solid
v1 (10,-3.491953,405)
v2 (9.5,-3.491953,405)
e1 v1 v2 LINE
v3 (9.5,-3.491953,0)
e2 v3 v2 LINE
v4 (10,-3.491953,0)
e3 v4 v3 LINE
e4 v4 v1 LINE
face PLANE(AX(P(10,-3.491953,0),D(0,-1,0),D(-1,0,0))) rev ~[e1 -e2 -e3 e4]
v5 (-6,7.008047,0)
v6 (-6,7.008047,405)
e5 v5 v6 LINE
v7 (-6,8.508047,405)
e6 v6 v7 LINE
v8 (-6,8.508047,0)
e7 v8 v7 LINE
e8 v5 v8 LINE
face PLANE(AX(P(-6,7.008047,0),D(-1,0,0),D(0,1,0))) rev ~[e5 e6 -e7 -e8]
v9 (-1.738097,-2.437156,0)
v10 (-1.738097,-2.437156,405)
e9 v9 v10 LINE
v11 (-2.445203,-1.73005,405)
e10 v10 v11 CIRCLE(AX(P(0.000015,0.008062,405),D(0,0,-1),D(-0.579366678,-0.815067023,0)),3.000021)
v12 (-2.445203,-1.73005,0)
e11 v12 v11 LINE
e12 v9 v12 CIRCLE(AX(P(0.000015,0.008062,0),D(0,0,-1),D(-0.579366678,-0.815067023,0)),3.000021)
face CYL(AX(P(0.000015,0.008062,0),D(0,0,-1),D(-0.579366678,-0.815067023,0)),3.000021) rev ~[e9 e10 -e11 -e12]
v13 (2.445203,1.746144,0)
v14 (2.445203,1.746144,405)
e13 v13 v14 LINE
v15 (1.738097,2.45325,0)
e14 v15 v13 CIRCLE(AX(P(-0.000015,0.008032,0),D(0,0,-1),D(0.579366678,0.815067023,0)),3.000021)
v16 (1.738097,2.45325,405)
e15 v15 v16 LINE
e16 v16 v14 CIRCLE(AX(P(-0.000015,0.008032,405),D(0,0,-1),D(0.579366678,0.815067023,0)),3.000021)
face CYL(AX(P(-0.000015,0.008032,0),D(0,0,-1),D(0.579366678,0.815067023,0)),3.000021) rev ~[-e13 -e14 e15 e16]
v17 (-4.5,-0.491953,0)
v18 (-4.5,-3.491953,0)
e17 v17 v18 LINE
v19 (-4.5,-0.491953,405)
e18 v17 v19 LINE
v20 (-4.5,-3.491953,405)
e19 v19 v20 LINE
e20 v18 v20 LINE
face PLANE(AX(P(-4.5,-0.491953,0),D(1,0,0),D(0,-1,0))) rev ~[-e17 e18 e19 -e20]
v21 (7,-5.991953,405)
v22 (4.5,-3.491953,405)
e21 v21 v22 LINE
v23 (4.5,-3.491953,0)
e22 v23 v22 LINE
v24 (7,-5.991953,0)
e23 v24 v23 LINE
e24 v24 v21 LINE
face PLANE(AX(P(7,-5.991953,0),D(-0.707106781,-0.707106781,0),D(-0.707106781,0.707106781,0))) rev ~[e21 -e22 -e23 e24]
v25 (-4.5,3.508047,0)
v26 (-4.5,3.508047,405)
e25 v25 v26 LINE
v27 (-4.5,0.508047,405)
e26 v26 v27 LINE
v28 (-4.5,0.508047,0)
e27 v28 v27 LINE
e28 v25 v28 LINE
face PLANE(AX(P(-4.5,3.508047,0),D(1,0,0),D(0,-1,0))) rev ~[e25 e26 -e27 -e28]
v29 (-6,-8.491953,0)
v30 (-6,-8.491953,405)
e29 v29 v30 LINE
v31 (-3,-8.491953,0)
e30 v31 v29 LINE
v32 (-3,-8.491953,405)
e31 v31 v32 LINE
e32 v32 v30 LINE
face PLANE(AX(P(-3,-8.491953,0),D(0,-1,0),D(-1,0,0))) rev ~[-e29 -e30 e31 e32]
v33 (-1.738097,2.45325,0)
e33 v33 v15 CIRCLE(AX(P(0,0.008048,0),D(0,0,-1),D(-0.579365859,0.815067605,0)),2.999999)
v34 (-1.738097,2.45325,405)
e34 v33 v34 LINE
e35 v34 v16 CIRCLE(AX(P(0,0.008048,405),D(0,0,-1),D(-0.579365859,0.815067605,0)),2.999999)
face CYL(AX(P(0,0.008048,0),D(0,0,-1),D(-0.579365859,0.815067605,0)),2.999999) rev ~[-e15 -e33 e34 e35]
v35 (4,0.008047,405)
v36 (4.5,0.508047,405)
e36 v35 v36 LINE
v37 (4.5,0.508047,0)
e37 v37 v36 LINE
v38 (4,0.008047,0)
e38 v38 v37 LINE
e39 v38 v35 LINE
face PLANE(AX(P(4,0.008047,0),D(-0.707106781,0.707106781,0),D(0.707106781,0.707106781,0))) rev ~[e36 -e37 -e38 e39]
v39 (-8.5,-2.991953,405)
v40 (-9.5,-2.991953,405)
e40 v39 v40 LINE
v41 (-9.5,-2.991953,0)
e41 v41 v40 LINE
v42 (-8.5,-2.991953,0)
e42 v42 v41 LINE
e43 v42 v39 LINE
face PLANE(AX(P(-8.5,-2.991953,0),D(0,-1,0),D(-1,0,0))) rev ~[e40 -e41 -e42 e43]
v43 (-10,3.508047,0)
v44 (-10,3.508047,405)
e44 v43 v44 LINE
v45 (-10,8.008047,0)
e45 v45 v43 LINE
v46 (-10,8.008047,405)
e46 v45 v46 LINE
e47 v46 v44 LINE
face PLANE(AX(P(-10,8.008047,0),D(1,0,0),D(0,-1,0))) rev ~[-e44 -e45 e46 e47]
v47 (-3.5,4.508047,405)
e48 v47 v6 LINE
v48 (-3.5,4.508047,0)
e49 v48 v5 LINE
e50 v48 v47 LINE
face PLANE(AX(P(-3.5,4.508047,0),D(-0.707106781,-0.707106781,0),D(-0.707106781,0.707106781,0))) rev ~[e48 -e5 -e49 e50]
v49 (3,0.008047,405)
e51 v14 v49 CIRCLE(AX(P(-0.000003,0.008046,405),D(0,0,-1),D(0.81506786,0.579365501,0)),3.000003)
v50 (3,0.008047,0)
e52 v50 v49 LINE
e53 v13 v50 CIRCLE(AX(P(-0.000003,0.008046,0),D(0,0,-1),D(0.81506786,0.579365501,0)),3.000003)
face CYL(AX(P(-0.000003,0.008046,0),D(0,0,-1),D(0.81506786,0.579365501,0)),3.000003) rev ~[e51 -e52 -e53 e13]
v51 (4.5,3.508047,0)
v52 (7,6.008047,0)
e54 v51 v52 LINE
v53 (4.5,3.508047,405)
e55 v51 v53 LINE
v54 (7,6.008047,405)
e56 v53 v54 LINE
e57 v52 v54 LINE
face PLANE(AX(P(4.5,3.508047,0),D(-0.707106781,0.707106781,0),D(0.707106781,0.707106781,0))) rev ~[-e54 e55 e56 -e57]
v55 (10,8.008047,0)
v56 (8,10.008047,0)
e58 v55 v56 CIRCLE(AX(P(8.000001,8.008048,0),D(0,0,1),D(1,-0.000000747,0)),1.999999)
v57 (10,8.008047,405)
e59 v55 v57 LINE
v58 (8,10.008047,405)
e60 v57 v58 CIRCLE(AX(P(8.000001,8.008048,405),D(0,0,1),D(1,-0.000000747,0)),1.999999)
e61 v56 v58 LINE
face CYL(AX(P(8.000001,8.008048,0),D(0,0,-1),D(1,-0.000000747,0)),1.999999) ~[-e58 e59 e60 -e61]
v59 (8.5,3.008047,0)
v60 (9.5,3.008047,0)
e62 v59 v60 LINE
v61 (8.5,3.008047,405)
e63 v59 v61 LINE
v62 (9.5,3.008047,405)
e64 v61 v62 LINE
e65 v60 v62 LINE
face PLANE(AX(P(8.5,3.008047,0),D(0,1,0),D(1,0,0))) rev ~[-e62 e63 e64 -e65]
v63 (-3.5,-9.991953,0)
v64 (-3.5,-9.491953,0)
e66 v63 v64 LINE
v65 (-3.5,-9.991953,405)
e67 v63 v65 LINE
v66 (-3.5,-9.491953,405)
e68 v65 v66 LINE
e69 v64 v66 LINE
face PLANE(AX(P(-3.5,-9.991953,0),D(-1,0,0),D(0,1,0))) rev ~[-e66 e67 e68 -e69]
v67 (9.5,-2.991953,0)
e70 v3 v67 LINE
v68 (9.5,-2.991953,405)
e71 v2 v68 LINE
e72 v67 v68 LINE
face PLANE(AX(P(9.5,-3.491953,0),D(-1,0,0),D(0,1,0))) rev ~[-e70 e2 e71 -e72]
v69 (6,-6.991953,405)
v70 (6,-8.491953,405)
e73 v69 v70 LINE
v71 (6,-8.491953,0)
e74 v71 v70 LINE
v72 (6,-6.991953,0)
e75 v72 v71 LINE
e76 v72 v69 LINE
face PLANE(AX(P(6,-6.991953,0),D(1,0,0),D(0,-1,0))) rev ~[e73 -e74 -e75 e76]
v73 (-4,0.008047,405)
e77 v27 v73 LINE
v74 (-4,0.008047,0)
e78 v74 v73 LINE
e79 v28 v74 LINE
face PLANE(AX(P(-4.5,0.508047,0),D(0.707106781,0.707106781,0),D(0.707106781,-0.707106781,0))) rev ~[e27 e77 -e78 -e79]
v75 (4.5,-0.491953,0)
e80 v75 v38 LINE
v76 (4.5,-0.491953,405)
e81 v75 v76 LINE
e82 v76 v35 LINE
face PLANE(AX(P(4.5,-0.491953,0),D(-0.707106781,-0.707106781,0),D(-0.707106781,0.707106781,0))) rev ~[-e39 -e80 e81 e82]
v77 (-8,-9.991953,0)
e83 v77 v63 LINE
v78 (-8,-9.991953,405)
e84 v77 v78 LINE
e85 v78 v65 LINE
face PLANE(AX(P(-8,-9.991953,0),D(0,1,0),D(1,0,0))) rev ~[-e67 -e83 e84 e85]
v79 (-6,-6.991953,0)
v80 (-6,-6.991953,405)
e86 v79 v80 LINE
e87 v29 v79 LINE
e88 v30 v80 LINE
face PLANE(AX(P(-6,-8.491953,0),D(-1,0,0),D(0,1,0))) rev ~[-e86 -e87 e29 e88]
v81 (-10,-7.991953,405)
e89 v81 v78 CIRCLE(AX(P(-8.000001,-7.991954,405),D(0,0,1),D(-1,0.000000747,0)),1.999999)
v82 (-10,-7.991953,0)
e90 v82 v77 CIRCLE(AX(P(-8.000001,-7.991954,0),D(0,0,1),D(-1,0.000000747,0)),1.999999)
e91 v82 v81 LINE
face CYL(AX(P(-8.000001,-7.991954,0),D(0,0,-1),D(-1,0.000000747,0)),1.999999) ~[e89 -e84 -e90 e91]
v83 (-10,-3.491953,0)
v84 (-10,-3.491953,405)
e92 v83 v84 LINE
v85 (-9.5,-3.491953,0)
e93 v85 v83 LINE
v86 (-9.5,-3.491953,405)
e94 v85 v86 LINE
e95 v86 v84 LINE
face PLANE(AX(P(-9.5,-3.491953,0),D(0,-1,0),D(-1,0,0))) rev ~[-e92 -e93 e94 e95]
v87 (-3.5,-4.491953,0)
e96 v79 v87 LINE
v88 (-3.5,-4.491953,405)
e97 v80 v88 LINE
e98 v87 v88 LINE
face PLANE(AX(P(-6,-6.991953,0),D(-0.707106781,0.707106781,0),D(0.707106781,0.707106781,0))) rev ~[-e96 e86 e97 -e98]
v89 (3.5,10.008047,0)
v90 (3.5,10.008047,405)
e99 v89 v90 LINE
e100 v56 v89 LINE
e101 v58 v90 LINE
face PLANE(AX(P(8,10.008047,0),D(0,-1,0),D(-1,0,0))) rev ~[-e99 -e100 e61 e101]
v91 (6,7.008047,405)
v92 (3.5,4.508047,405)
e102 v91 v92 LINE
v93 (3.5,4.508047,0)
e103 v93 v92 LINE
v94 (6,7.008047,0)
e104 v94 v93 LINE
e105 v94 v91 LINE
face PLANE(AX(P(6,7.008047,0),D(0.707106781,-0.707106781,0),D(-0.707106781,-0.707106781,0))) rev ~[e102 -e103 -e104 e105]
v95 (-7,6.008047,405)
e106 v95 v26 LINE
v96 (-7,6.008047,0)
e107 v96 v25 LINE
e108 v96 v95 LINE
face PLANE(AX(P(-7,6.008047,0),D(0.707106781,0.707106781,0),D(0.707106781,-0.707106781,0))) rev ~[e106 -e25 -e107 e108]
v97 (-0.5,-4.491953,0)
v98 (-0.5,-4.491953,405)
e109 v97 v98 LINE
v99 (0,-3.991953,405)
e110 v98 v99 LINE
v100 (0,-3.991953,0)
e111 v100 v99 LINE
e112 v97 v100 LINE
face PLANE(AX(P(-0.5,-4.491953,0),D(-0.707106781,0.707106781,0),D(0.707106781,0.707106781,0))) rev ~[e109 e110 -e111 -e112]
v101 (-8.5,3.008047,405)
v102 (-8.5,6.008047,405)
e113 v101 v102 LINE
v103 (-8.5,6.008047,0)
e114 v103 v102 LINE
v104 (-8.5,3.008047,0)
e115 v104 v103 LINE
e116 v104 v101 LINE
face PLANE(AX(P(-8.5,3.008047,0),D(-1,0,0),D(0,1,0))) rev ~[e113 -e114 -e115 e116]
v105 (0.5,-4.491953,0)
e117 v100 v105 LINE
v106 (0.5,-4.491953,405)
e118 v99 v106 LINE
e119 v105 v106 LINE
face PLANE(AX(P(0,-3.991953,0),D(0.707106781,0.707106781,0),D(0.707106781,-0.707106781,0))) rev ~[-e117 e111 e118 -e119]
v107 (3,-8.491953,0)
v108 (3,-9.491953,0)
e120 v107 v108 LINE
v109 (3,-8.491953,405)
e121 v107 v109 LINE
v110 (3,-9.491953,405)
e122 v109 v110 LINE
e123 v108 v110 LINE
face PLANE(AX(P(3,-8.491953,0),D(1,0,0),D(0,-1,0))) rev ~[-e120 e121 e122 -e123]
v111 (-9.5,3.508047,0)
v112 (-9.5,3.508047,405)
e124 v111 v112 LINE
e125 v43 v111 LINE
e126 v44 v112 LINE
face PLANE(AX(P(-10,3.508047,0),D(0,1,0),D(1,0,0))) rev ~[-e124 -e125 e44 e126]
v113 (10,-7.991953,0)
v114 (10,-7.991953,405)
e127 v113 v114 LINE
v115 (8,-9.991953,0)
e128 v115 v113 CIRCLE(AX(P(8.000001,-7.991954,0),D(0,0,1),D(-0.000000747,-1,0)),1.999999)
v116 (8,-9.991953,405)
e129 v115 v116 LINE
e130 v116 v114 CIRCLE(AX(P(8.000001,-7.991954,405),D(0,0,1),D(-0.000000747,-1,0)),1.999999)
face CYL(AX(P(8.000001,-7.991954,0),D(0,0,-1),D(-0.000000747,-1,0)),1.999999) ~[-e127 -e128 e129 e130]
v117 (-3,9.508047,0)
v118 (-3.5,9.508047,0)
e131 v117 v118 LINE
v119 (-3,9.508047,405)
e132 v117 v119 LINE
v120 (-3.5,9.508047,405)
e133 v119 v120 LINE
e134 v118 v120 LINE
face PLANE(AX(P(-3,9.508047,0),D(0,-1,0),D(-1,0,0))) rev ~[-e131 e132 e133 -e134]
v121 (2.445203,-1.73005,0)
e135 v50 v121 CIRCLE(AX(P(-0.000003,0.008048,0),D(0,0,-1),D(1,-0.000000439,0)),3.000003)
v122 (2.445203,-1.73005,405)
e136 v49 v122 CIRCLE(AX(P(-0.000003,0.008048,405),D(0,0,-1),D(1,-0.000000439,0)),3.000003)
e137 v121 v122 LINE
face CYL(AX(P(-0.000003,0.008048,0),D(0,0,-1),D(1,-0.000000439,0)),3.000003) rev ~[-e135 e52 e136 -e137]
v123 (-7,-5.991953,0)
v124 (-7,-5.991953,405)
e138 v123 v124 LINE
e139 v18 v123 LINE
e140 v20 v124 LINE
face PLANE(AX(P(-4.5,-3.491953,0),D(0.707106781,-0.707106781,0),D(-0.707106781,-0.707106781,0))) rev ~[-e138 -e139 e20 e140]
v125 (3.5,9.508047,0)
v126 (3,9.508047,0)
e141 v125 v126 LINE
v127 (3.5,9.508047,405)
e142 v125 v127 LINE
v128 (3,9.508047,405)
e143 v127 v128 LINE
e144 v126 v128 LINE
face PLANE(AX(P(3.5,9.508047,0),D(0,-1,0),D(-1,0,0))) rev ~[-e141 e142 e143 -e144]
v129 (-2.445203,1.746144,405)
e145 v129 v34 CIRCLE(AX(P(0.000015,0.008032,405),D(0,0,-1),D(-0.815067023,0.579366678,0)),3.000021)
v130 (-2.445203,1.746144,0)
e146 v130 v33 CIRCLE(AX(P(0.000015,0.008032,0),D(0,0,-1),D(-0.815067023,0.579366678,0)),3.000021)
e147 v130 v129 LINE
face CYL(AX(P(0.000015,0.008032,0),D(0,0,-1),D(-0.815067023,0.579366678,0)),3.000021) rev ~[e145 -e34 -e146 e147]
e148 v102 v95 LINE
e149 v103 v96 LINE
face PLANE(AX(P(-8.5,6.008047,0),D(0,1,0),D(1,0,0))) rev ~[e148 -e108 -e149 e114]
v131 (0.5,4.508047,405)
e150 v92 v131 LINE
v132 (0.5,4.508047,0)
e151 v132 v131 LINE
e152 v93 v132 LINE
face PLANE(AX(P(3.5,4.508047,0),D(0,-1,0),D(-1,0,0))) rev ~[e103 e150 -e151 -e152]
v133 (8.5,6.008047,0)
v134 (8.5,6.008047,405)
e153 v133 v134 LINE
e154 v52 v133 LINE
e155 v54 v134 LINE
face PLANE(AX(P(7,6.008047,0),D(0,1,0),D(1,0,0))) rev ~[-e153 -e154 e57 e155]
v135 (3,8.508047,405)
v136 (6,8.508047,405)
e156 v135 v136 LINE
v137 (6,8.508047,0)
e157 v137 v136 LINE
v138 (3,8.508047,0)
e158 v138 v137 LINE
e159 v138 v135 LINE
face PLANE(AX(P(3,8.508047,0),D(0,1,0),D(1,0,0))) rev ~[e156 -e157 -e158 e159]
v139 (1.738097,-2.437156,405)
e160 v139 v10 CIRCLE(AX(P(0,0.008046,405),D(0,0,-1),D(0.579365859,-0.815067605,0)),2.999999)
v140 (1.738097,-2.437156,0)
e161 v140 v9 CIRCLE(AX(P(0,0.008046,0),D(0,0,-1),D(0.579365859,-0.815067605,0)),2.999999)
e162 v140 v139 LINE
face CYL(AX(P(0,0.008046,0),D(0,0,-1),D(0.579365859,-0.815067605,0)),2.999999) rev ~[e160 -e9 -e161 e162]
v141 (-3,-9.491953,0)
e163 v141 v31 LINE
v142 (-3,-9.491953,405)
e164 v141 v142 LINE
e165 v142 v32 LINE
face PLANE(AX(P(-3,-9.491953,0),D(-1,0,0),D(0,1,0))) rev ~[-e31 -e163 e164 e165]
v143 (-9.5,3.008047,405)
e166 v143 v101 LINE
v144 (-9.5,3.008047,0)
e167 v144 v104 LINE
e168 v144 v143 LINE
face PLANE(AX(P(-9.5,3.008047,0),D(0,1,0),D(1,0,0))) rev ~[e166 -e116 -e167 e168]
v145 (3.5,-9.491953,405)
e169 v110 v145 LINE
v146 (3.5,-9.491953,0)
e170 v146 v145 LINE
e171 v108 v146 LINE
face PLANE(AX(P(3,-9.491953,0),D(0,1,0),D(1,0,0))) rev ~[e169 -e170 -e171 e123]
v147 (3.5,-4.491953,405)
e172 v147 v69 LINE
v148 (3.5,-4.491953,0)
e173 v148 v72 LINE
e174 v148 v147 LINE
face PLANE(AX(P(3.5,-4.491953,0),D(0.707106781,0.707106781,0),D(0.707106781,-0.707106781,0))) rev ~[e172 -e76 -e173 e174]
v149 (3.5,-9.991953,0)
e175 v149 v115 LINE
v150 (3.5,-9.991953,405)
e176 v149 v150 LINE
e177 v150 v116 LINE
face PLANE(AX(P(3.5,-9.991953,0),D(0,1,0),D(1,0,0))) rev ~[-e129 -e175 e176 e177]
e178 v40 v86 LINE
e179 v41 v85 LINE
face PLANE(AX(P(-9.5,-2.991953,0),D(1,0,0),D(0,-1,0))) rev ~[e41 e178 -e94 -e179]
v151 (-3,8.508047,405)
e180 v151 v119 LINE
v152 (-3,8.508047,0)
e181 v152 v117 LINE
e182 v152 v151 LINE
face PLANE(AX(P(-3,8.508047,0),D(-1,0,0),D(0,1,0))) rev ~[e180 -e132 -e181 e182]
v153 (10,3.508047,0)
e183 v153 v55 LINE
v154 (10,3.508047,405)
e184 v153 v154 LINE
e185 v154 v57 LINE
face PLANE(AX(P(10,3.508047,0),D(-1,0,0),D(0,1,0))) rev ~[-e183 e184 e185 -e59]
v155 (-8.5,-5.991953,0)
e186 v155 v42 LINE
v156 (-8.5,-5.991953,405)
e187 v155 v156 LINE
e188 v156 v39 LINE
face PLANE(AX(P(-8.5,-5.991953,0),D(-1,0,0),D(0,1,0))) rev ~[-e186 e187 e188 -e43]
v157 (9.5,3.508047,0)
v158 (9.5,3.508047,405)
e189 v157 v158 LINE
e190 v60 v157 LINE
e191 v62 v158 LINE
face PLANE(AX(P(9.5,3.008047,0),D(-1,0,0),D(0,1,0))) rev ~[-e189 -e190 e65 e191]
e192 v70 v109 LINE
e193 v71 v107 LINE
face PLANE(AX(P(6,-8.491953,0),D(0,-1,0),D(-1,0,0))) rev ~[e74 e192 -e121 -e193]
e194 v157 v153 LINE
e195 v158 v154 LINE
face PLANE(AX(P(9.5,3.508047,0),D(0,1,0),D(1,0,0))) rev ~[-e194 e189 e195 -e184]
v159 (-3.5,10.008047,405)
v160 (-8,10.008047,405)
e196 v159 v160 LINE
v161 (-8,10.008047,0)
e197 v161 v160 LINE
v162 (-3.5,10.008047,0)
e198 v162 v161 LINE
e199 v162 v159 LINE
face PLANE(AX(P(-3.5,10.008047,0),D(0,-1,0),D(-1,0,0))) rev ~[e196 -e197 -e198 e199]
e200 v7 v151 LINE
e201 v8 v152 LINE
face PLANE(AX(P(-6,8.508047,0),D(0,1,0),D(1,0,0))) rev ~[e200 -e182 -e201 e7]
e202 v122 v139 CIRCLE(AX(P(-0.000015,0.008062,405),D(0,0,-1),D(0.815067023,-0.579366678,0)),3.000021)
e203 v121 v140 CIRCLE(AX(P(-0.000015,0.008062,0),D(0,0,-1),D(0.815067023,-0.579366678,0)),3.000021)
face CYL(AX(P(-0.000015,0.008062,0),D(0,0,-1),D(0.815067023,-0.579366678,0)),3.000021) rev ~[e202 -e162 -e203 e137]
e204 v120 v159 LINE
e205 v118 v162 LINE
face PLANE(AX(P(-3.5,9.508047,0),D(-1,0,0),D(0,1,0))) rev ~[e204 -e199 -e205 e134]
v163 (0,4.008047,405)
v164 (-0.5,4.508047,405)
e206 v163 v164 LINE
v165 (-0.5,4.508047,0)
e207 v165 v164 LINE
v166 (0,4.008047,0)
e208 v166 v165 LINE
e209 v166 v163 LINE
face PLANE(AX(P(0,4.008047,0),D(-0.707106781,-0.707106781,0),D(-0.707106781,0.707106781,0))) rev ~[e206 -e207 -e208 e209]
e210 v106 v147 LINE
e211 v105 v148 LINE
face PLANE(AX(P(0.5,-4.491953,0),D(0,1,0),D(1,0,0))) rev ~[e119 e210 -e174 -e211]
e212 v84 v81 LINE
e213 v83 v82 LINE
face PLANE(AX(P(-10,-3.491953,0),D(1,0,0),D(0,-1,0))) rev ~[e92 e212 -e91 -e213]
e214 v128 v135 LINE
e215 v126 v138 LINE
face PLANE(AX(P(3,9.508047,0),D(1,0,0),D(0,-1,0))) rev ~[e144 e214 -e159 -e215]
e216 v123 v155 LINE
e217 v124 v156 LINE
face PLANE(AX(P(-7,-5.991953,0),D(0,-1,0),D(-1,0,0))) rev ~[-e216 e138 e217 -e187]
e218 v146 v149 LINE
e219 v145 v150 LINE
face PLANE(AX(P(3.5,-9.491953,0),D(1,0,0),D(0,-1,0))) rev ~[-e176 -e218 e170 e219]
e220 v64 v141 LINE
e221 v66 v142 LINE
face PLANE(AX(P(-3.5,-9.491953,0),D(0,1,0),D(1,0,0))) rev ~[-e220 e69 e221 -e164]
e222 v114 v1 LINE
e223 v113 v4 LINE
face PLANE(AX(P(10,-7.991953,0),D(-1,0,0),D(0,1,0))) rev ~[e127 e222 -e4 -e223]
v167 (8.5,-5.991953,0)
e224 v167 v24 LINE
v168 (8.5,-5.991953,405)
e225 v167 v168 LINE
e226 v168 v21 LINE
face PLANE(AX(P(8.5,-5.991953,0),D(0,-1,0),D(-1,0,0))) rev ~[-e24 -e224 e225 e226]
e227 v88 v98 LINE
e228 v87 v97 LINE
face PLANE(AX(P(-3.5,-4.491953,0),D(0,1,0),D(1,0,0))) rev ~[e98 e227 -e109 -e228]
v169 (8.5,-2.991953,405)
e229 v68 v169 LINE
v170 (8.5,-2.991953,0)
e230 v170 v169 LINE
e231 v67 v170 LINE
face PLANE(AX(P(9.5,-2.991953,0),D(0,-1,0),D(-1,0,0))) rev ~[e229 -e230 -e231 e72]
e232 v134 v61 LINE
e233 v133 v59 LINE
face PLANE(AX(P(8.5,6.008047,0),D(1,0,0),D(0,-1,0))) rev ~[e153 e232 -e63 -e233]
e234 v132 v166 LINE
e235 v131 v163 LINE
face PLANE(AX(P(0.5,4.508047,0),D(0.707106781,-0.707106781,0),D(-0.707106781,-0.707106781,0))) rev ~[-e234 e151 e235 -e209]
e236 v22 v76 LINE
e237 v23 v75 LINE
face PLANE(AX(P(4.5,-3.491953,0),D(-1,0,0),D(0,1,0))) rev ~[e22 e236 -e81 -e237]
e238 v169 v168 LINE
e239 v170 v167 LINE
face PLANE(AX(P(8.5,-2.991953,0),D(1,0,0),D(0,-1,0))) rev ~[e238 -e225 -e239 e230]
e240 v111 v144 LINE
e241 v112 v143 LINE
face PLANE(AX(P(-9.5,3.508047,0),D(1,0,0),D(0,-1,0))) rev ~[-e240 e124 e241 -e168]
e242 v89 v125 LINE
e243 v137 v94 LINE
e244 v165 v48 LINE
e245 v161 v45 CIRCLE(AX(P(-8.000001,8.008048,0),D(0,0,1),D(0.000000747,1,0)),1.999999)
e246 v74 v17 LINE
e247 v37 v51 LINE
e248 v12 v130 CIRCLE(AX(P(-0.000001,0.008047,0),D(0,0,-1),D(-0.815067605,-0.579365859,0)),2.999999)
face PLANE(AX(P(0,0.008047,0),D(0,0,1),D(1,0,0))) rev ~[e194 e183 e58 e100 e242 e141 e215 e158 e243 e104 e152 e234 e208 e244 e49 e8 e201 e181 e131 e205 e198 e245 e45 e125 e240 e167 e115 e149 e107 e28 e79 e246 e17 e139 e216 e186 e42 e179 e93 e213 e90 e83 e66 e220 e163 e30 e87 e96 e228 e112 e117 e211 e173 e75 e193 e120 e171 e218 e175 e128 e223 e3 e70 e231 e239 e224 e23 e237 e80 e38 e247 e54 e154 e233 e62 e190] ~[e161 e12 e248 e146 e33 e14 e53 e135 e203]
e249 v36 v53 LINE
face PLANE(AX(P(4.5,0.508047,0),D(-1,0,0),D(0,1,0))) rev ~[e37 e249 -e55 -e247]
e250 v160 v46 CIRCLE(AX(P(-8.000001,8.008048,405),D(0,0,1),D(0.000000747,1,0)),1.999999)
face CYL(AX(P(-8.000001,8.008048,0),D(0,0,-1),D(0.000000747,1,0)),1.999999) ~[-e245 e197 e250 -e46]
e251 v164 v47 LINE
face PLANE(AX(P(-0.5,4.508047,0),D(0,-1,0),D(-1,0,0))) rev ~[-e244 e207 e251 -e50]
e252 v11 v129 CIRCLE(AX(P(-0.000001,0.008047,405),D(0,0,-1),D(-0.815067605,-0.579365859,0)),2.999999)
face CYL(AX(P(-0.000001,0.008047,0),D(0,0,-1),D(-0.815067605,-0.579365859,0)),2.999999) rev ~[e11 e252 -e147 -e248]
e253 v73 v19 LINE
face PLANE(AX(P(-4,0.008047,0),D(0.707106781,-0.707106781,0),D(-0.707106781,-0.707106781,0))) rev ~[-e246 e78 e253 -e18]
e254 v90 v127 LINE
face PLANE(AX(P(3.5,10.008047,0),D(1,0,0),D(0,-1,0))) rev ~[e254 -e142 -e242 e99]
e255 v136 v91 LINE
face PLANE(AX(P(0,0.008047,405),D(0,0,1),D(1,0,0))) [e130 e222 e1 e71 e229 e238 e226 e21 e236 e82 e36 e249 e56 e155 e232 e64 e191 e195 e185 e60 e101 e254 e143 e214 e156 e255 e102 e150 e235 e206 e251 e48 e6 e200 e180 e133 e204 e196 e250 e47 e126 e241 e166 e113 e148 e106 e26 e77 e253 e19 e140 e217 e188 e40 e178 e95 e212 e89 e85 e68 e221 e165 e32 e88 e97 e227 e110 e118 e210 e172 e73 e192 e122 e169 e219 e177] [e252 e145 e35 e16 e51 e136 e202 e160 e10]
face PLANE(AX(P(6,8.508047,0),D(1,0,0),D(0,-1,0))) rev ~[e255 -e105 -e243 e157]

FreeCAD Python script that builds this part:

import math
import FreeCAD as App
import Part
import Sketcher
Q = App.Units.Quantity

doc = App.newDocument("Part")
body = doc.addObject("PartDesign::Body", "Body")

# Sketch on XY plane
sketch1 = doc.addObject("Sketcher::SketchObject", "Sketch")
body.addObject(sketch1)
sketch1.AttachmentSupport = (doc.XY_Plane, [""])
sketch1.MapMode = "FlatFace"
sketch1.addGeometry([
    Part.ArcOfCircle(Part.Circle(App.Vector(-8.000001, -7.991954, 0), App.Vector(0, 0, 1), 1.999999), math.radians(179.999957), math.radians(270.000043)),  # 0
    Part.LineSegment(App.Vector(-8, -9.991953, 0), App.Vector(-3.5, -9.991953, 0)),  # 1
    Part.LineSegment(App.Vector(-3.5, -9.991953, 0), App.Vector(-3.5, -9.491953, 0)),  # 2
    Part.LineSegment(App.Vector(-3.5, -9.491953, 0), App.Vector(-3, -9.491953, 0)),  # 3
    Part.LineSegment(App.Vector(-3, -9.491953, 0), App.Vector(-3, -8.491953, 0)),  # 4
    Part.LineSegment(App.Vector(-3, -8.491953, 0), App.Vector(-6, -8.491953, 0)),  # 5
    Part.LineSegment(App.Vector(-6, -8.491953, 0), App.Vector(-6, -6.991953, 0)),  # 6
    Part.LineSegment(App.Vector(-6, -6.991953, 0), App.Vector(-3.5, -4.491953, 0)),  # 7
    Part.LineSegment(App.Vector(-3.5, -4.491953, 0), App.Vector(-0.5, -4.491953, 0)),  # 8
    Part.LineSegment(App.Vector(-0.5, -4.491953, 0), App.Vector(0, -3.991953, 0)),  # 9
    Part.LineSegment(App.Vector(0, -3.991953, 0), App.Vector(0.5, -4.491953, 0)),  # 10
    Part.LineSegment(App.Vector(0.5, -4.491953, 0), App.Vector(3.5, -4.491953, 0)),  # 11
    Part.LineSegment(App.Vector(3.5, -4.491953, 0), App.Vector(6, -6.991953, 0)),  # 12
    Part.LineSegment(App.Vector(6, -6.991953, 0), App.Vector(6, -8.491953, 0)),  # 13
    Part.LineSegment(App.Vector(6, -8.491953, 0), App.Vector(3, -8.491953, 0)),  # 14
    Part.LineSegment(App.Vector(3, -8.491953, 0), App.Vector(3, -9.491953, 0)),  # 15
    Part.LineSegment(App.Vector(3, -9.491953, 0), App.Vector(3.5, -9.491953, 0)),  # 16
    Part.LineSegment(App.Vector(3.5, -9.491953, 0), App.Vector(3.5, -9.991953, 0)),  # 17
    Part.LineSegment(App.Vector(3.5, -9.991953, 0), App.Vector(8, -9.991953, 0)),  # 18
    Part.ArcOfCircle(Part.Circle(App.Vector(8.000001, -7.991954, 0), App.Vector(0, 0, 1), 1.999999), math.radians(-90.000043), math.radians(0.000043)),  # 19
    Part.LineSegment(App.Vector(10, -7.991953, 0), App.Vector(10, -3.491953, 0)),  # 20
    Part.LineSegment(App.Vector(10, -3.491953, 0), App.Vector(9.5, -3.491953, 0)),  # 21
    Part.LineSegment(App.Vector(9.5, -3.491953, 0), App.Vector(9.5, -2.991953, 0)),  # 22
    Part.LineSegment(App.Vector(9.5, -2.991953, 0), App.Vector(8.5, -2.991953, 0)),  # 23
    Part.LineSegment(App.Vector(8.5, -2.991953, 0), App.Vector(8.5, -5.991953, 0)),  # 24
    Part.LineSegment(App.Vector(8.5, -5.991953, 0), App.Vector(7, -5.991953, 0)),  # 25
    Part.LineSegment(App.Vector(7, -5.991953, 0), App.Vector(4.5, -3.491953, 0)),  # 26
    Part.LineSegment(App.Vector(4.5, -3.491953, 0), App.Vector(4.5, -0.491953, 0)),  # 27
    Part.LineSegment(App.Vector(4.5, -0.491953, 0), App.Vector(4, 0.008047, 0)),  # 28
    Part.LineSegment(App.Vector(4, 0.008047, 0), App.Vector(4.5, 0.508047, 0)),  # 29
    Part.LineSegment(App.Vector(4.5, 0.508047, 0), App.Vector(4.5, 3.508047, 0)),  # 30
    Part.LineSegment(App.Vector(4.5, 3.508047, 0), App.Vector(7, 6.008047, 0)),  # 31
    Part.LineSegment(App.Vector(7, 6.008047, 0), App.Vector(8.5, 6.008047, 0)),  # 32
    Part.LineSegment(App.Vector(8.5, 6.008047, 0), App.Vector(8.5, 3.008047, 0)),  # 33
    Part.LineSegment(App.Vector(8.5, 3.008047, 0), App.Vector(9.5, 3.008047, 0)),  # 34
    Part.LineSegment(App.Vector(9.5, 3.008047, 0), App.Vector(9.5, 3.508047, 0)),  # 35
    Part.LineSegment(App.Vector(9.5, 3.508047, 0), App.Vector(10, 3.508047, 0)),  # 36
    Part.LineSegment(App.Vector(10, 3.508047, 0), App.Vector(10, 8.008047, 0)),  # 37
    Part.ArcOfCircle(Part.Circle(App.Vector(8.000001, 8.008048, 0), App.Vector(0, 0, 1), 1.999999), math.radians(-0.000043), math.radians(90.000043)),  # 38
    Part.LineSegment(App.Vector(8, 10.008047, 0), App.Vector(3.5, 10.008047, 0)),  # 39
    Part.LineSegment(App.Vector(3.5, 10.008047, 0), App.Vector(3.5, 9.508047, 0)),  # 40
    Part.LineSegment(App.Vector(3.5, 9.508047, 0), App.Vector(3, 9.508047, 0)),  # 41
    Part.LineSegment(App.Vector(3, 9.508047, 0), App.Vector(3, 8.508047, 0)),  # 42
    Part.LineSegment(App.Vector(3, 8.508047, 0), App.Vector(6, 8.508047, 0)),  # 43
    Part.LineSegment(App.Vector(6, 8.508047, 0), App.Vector(6, 7.008047, 0)),  # 44
    Part.LineSegment(App.Vector(6, 7.008047, 0), App.Vector(3.5, 4.508047, 0)),  # 45
    Part.LineSegment(App.Vector(3.5, 4.508047, 0), App.Vector(0.5, 4.508047, 0)),  # 46
    Part.LineSegment(App.Vector(0.5, 4.508047, 0), App.Vector(0, 4.008047, 0)),  # 47
    Part.LineSegment(App.Vector(0, 4.008047, 0), App.Vector(-0.5, 4.508047, 0)),  # 48
    Part.LineSegment(App.Vector(-0.5, 4.508047, 0), App.Vector(-3.5, 4.508047, 0)),  # 49
    Part.LineSegment(App.Vector(-3.5, 4.508047, 0), App.Vector(-6, 7.008047, 0)),  # 50
    Part.LineSegment(App.Vector(-6, 7.008047, 0), App.Vector(-6, 8.508047, 0)),  # 51
    Part.LineSegment(App.Vector(-6, 8.508047, 0), App.Vector(-3, 8.508047, 0)),  # 52
    Part.LineSegment(App.Vector(-3, 8.508047, 0), App.Vector(-3, 9.508047, 0)),  # 53
    Part.LineSegment(App.Vector(-3, 9.508047, 0), App.Vector(-3.5, 9.508047, 0)),  # 54
    Part.LineSegment(App.Vector(-3.5, 9.508047, 0), App.Vector(-3.5, 10.008047, 0)),  # 55
    Part.LineSegment(App.Vector(-3.5, 10.008047, 0), App.Vector(-8, 10.008047, 0)),  # 56
    Part.ArcOfCircle(Part.Circle(App.Vector(-8.000001, 8.008048, 0), App.Vector(0, 0, 1), 1.999999), math.radians(89.999957), math.radians(180.000043)),  # 57
    Part.LineSegment(App.Vector(-10, 8.008047, 0), App.Vector(-10, 3.508047, 0)),  # 58
    Part.LineSegment(App.Vector(-10, 3.508047, 0), App.Vector(-9.5, 3.508047, 0)),  # 59
    Part.LineSegment(App.Vector(-9.5, 3.508047, 0), App.Vector(-9.5, 3.008047, 0)),  # 60
    Part.LineSegment(App.Vector(-9.5, 3.008047, 0), App.Vector(-8.5, 3.008047, 0)),  # 61
    Part.LineSegment(App.Vector(-8.5, 3.008047, 0), App.Vector(-8.5, 6.008047, 0)),  # 62
    Part.LineSegment(App.Vector(-8.5, 6.008047, 0), App.Vector(-7, 6.008047, 0)),  # 63
    Part.LineSegment(App.Vector(-7, 6.008047, 0), App.Vector(-4.5, 3.508047, 0)),  # 64
    Part.LineSegment(App.Vector(-4.5, 3.508047, 0), App.Vector(-4.5, 0.508047, 0)),  # 65
    Part.LineSegment(App.Vector(-4.5, 0.508047, 0), App.Vector(-4, 0.008047, 0)),  # 66
    Part.LineSegment(App.Vector(-4, 0.008047, 0), App.Vector(-4.5, -0.491953, 0)),  # 67
    Part.LineSegment(App.Vector(-4.5, -0.491953, 0), App.Vector(-4.5, -3.491953, 0)),  # 68
    Part.LineSegment(App.Vector(-4.5, -3.491953, 0), App.Vector(-7, -5.991953, 0)),  # 69
    Part.LineSegment(App.Vector(-7, -5.991953, 0), App.Vector(-8.5, -5.991953, 0)),  # 70
    Part.LineSegment(App.Vector(-8.5, -5.991953, 0), App.Vector(-8.5, -2.991953, 0)),  # 71
    Part.LineSegment(App.Vector(-8.5, -2.991953, 0), App.Vector(-9.5, -2.991953, 0)),  # 72
    Part.LineSegment(App.Vector(-9.5, -2.991953, 0), App.Vector(-9.5, -3.491953, 0)),  # 73
    Part.LineSegment(App.Vector(-9.5, -3.491953, 0), App.Vector(-10, -3.491953, 0)),  # 74
    Part.LineSegment(App.Vector(-10, -3.491953, 0), App.Vector(-10, -7.991953, 0)),  # 75
    Part.ArcOfCircle(Part.Circle(App.Vector(-0.000015, 0.008032, 0), App.Vector(0, 0, 1), 3.000021), math.radians(35.40601), math.radians(54.59399)),  # 76
    Part.ArcOfCircle(Part.Circle(App.Vector(-0.000003, 0.008046, 0), App.Vector(0, 0, 1), 3.000003), math.radians(0.000025), math.radians(35.405928)),  # 77
    Part.ArcOfCircle(Part.Circle(App.Vector(-0.000003, 0.008048, 0), App.Vector(0, 0, 1), 3.000003), math.radians(-35.405928), math.radians(-0.000025)),  # 78
    Part.ArcOfCircle(Part.Circle(App.Vector(-0.000015, 0.008062, 0), App.Vector(0, 0, 1), 3.000021), math.radians(-54.59399), math.radians(-35.40601)),  # 79
    Part.ArcOfCircle(Part.Circle(App.Vector(0, 0.008046, 0), App.Vector(0, 0, 1), 2.999999), math.radians(-125.405953), math.radians(-54.594047)),  # 80
    Part.ArcOfCircle(Part.Circle(App.Vector(0.000015, 0.008062, 0), App.Vector(0, 0, 1), 3.000021), math.radians(-144.59399), math.radians(-125.40601)),  # 81
    Part.ArcOfCircle(Part.Circle(App.Vector(-0.000001, 0.008047, 0), App.Vector(0, 0, 1), 2.999999), math.radians(144.594047), math.radians(215.405953)),  # 82
    Part.ArcOfCircle(Part.Circle(App.Vector(0.000015, 0.008032, 0), App.Vector(0, 0, 1), 3.000021), math.radians(125.40601), math.radians(144.59399)),  # 83
    Part.ArcOfCircle(Part.Circle(App.Vector(0, 0.008048, 0), App.Vector(0, 0, 1), 2.999999), math.radians(54.594047), math.radians(125.405953)),  # 84
], False)
sketch1.addConstraint([
    Sketcher.Constraint("Coincident", 0, 2, 1, 1),
    Sketcher.Constraint("Coincident", 1, 2, 2, 1),
    Sketcher.Constraint("Coincident", 2, 2, 3, 1),
    Sketcher.Constraint("Coincident", 3, 2, 4, 1),
    Sketcher.Constraint("Coincident", 4, 2, 5, 1),
    Sketcher.Constraint("Coincident", 5, 2, 6, 1),
    Sketcher.Constraint("Coincident", 6, 2, 7, 1),
    Sketcher.Constraint("Coincident", 7, 2, 8, 1),
    Sketcher.Constraint("Coincident", 8, 2, 9, 1),
    Sketcher.Constraint("Coincident", 9, 2, 10, 1),
    Sketcher.Constraint("Coincident", 10, 2, 11, 1),
    Sketcher.Constraint("Coincident", 11, 2, 12, 1),
    Sketcher.Constraint("Coincident", 12, 2, 13, 1),
    Sketcher.Constraint("Coincident", 13, 2, 14, 1),
    Sketcher.Constraint("Coincident", 14, 2, 15, 1),
    Sketcher.Constraint("Coincident", 15, 2, 16, 1),
    Sketcher.Constraint("Coincident", 16, 2, 17, 1),
    Sketcher.Constraint("Coincident", 17, 2, 18, 1),
    Sketcher.Constraint("Coincident", 18, 2, 19, 1),
    Sketcher.Constraint("Coincident", 19, 2, 20, 1),
    Sketcher.Constraint("Coincident", 20, 2, 21, 1),
    Sketcher.Constraint("Coincident", 21, 2, 22, 1),
    Sketcher.Constraint("Coincident", 22, 2, 23, 1),
    Sketcher.Constraint("Coincident", 23, 2, 24, 1),
    Sketcher.Constraint("Coincident", 24, 2, 25, 1),
    Sketcher.Constraint("Coincident", 25, 2, 26, 1),
    Sketcher.Constraint("Coincident", 26, 2, 27, 1),
    Sketcher.Constraint("Coincident", 27, 2, 28, 1),
    Sketcher.Constraint("Coincident", 28, 2, 29, 1),
    Sketcher.Constraint("Coincident", 29, 2, 30, 1),
    Sketcher.Constraint("Coincident", 30, 2, 31, 1),
    Sketcher.Constraint("Coincident", 31, 2, 32, 1),
    Sketcher.Constraint("Coincident", 32, 2, 33, 1),
    Sketcher.Constraint("Coincident", 33, 2, 34, 1),
    Sketcher.Constraint("Coincident", 34, 2, 35, 1),
    Sketcher.Constraint("Coincident", 35, 2, 36, 1),
    Sketcher.Constraint("Coincident", 36, 2, 37, 1),
    Sketcher.Constraint("Coincident", 37, 2, 38, 1),
    Sketcher.Constraint("Coincident", 38, 2, 39, 1),
    Sketcher.Constraint("Coincident", 39, 2, 40, 1),
    Sketcher.Constraint("Coincident", 40, 2, 41, 1),
    Sketcher.Constraint("Coincident", 41, 2, 42, 1),
    Sketcher.Constraint("Coincident", 42, 2, 43, 1),
    Sketcher.Constraint("Coincident", 43, 2, 44, 1),
    Sketcher.Constraint("Coincident", 44, 2, 45, 1),
    Sketcher.Constraint("Coincident", 45, 2, 46, 1),
    Sketcher.Constraint("Coincident", 46, 2, 47, 1),
    Sketcher.Constraint("Coincident", 47, 2, 48, 1),
    Sketcher.Constraint("Coincident", 48, 2, 49, 1),
    Sketcher.Constraint("Coincident", 49, 2, 50, 1),
    Sketcher.Constraint("Coincident", 50, 2, 51, 1),
    Sketcher.Constraint("Coincident", 51, 2, 52, 1),
    Sketcher.Constraint("Coincident", 52, 2, 53, 1),
    Sketcher.Constraint("Coincident", 53, 2, 54, 1),
    Sketcher.Constraint("Coincident", 54, 2, 55, 1),
    Sketcher.Constraint("Coincident", 55, 2, 56, 1),
    Sketcher.Constraint("Coincident", 56, 2, 57, 1),
    Sketcher.Constraint("Coincident", 57, 2, 58, 1),
    Sketcher.Constraint("Coincident", 58, 2, 59, 1),
    Sketcher.Constraint("Coincident", 59, 2, 60, 1),
    Sketcher.Constraint("Coincident", 60, 2, 61, 1),
    Sketcher.Constraint("Coincident", 61, 2, 62, 1),
    Sketcher.Constraint("Coincident", 62, 2, 63, 1),
    Sketcher.Constraint("Coincident", 63, 2, 64, 1),
    Sketcher.Constraint("Coincident", 64, 2, 65, 1),
    Sketcher.Constraint("Coincident", 65, 2, 66, 1),
    Sketcher.Constraint("Coincident", 66, 2, 67, 1),
    Sketcher.Constraint("Coincident", 67, 2, 68, 1),
    Sketcher.Constraint("Coincident", 68, 2, 69, 1),
    Sketcher.Constraint("Coincident", 69, 2, 70, 1),
    Sketcher.Constraint("Coincident", 70, 2, 71, 1),
    Sketcher.Constraint("Coincident", 71, 2, 72, 1),
    Sketcher.Constraint("Coincident", 72, 2, 73, 1),
    Sketcher.Constraint("Coincident", 73, 2, 74, 1),
    Sketcher.Constraint("Coincident", 74, 2, 75, 1),
    Sketcher.Constraint("Coincident", 75, 2, 0, 1),
    Sketcher.Constraint("Coincident", 76, 1, 77, 2),
    Sketcher.Constraint("Coincident", 77, 1, 78, 2),
    Sketcher.Constraint("Coincident", 78, 1, 79, 2),
    Sketcher.Constraint("Coincident", 79, 1, 80, 2),
    Sketcher.Constraint("Coincident", 80, 1, 81, 2),
    Sketcher.Constraint("Coincident", 81, 1, 82, 2),
    Sketcher.Constraint("Coincident", 82, 1, 83, 2),
    Sketcher.Constraint("Coincident", 83, 1, 84, 2),
    Sketcher.Constraint("Coincident", 84, 1, 76, 2),
    Sketcher.Constraint("Horizontal", 1),
    Sketcher.Constraint("Vertical", 2),
    Sketcher.Constraint("Horizontal", 3),
    Sketcher.Constraint("Vertical", 4),
    Sketcher.Constraint("Horizontal", 5),
    Sketcher.Constraint("Vertical", 6),
    Sketcher.Constraint("Horizontal", 8),
    Sketcher.Constraint("Horizontal", 11),
    Sketcher.Constraint("Vertical", 13),
    Sketcher.Constraint("Horizontal", 14),
    Sketcher.Constraint("Vertical", 15),
    Sketcher.Constraint("Horizontal", 16),
    Sketcher.Constraint("Vertical", 17),
    Sketcher.Constraint("Horizontal", 18),
    Sketcher.Constraint("Vertical", 20),
    Sketcher.Constraint("Horizontal", 21),
    Sketcher.Constraint("Vertical", 22),
    Sketcher.Constraint("Horizontal", 23),
    Sketcher.Constraint("Vertical", 24),
    Sketcher.Constraint("Horizontal", 25),
    Sketcher.Constraint("Vertical", 27),
    Sketcher.Constraint("Vertical", 30),
    Sketcher.Constraint("Horizontal", 32),
    Sketcher.Constraint("Vertical", 33),
    Sketcher.Constraint("Horizontal", 34),
    Sketcher.Constraint("Vertical", 35),
    Sketcher.Constraint("Horizontal", 36),
    Sketcher.Constraint("Vertical", 37),
    Sketcher.Constraint("Horizontal", 39),
    Sketcher.Constraint("Vertical", 40),
    Sketcher.Constraint("Horizontal", 41),
    Sketcher.Constraint("Vertical", 42),
    Sketcher.Constraint("Horizontal", 43),
    Sketcher.Constraint("Vertical", 44),
    Sketcher.Constraint("Horizontal", 46),
    Sketcher.Constraint("Horizontal", 49),
    Sketcher.Constraint("Vertical", 51),
    Sketcher.Constraint("Horizontal", 52),
    Sketcher.Constraint("Vertical", 53),
    Sketcher.Constraint("Horizontal", 54),
    Sketcher.Constraint("Vertical", 55),
    Sketcher.Constraint("Horizontal", 56),
    Sketcher.Constraint("Vertical", 58),
    Sketcher.Constraint("Horizontal", 59),
    Sketcher.Constraint("Vertical", 60),
    Sketcher.Constraint("Horizontal", 61),
    Sketcher.Constraint("Vertical", 62),
    Sketcher.Constraint("Horizontal", 63),
    Sketcher.Constraint("Vertical", 65),
    Sketcher.Constraint("Vertical", 68),
    Sketcher.Constraint("Horizontal", 70),
    Sketcher.Constraint("Vertical", 71),
    Sketcher.Constraint("Horizontal", 72),
    Sketcher.Constraint("Vertical", 73),
    Sketcher.Constraint("Horizontal", 74),
    Sketcher.Constraint("Vertical", 75),
    Sketcher.Constraint("Coincident", 78, 3, 77, 3),
    Sketcher.Constraint("Coincident", 80, 3, 77, 3),
    Sketcher.Constraint("Coincident", 82, 3, 77, 3),
    Sketcher.Constraint("Coincident", 84, 3, 77, 3),
    Sketcher.Constraint("PointOnObject", 80, 3, -2),
    Sketcher.Constraint("PointOnObject", 9, 2, -2),
    Sketcher.Constraint("PointOnObject", 47, 2, -2),
    Sketcher.Constraint("Radius", 0, Q("1.999999 mm")),
    Sketcher.Constraint("Radius", 19, Q("1.999999 mm")),
    Sketcher.Constraint("Radius", 38, Q("1.999999 mm")),
    Sketcher.Constraint("Radius", 57, Q("1.999999 mm")),
    Sketcher.Constraint("Radius", 80, Q("2.999999 mm")),
    Sketcher.Constraint("Radius", 82, Q("2.999999 mm")),
    Sketcher.Constraint("Radius", 84, Q("2.999999 mm")),
    Sketcher.Constraint("DistanceX", 5, 2, 5, 1, Q("3 mm")),
    Sketcher.Constraint("DistanceX", 8, 1, 8, 2, Q("3 mm")),
    Sketcher.Constraint("DistanceX", 11, 1, 11, 2, Q("3 mm")),
    Sketcher.Constraint("DistanceX", 14, 2, 14, 1, Q("3 mm")),
    Sketcher.Constraint("DistanceX", 23, 2, 23, 1, Q("1 mm")),
    Sketcher.Constraint("DistanceX", 34, 1, 34, 2, Q("1 mm")),
    Sketcher.Constraint("DistanceX", 43, 1, 43, 2, Q("3 mm")),
    Sketcher.Constraint("DistanceX", 46, 2, 46, 1, Q("3 mm")),
    Sketcher.Constraint("DistanceX", 49, 2, 49, 1, Q("3 mm")),
    Sketcher.Constraint("DistanceX", 52, 1, 52, 2, Q("3 mm")),
    Sketcher.Constraint("DistanceX", 61, 1, 61, 2, Q("1 mm")),
    Sketcher.Constraint("DistanceX", 72, 2, 72, 1, Q("1 mm")),
    Sketcher.Constraint("DistanceY", 4, 1, 4, 2, Q("1 mm")),
    Sketcher.Constraint("DistanceY", 15, 2, 15, 1, Q("1 mm")),
    Sketcher.Constraint("DistanceY", 24, 2, 24, 1, Q("3 mm")),
    Sketcher.Constraint("DistanceY", 27, 1, 27, 2, Q("3 mm")),
    Sketcher.Constraint("DistanceY", 30, 1, 30, 2, Q("3 mm")),
    Sketcher.Constraint("DistanceY", 33, 2, 33, 1, Q("3 mm")),
    Sketcher.Constraint("DistanceY", 42, 2, 42, 1, Q("1 mm")),
    Sketcher.Constraint("DistanceY", 53, 1, 53, 2, Q("1 mm")),
    Sketcher.Constraint("DistanceY", 62, 1, 62, 2, Q("3 mm")),
    Sketcher.Constraint("DistanceY", 65, 2, 65, 1, Q("3 mm")),
    Sketcher.Constraint("DistanceY", 68, 2, 68, 1, Q("3 mm")),
    Sketcher.Constraint("DistanceY", 71, 1, 71, 2, Q("3 mm")),
    Sketcher.Constraint("DistanceX", 1, 1, 1, 2, Q("4.5 mm")),
    Sketcher.Constraint("DistanceX", 3, 1, 3, 2, Q("0.5 mm")),
    Sketcher.Constraint("DistanceX", 16, 1, 16, 2, Q("0.5 mm")),
    Sketcher.Constraint("DistanceX", 18, 1, 18, 2, Q("4.5 mm")),
    Sketcher.Constraint("DistanceX", 21, 2, 21, 1, Q("0.5 mm")),
    Sketcher.Constraint("DistanceX", 25, 2, 25, 1, Q("1.5 mm")),
    Sketcher.Constraint("DistanceX", 32, 1, 32, 2, Q("1.5 mm")),
    Sketcher.Constraint("DistanceX", 36, 1, 36, 2, Q("0.5 mm")),
    Sketcher.Constraint("DistanceX", 39, 2, 39, 1, Q("4.5 mm")),
    Sketcher.Constraint("DistanceX", 41, 2, 41, 1, Q("0.5 mm")),
    Sketcher.Constraint("DistanceX", 54, 2, 54, 1, Q("0.5 mm")),
    Sketcher.Constraint("DistanceX", 56, 2, 56, 1, Q("4.5 mm")),
    Sketcher.Constraint("DistanceX", 59, 1, 59, 2, Q("0.5 mm")),
    Sketcher.Constraint("DistanceX", 63, 1, 63, 2, Q("1.5 mm")),
    Sketcher.Constraint("DistanceX", 70, 2, 70, 1, Q("1.5 mm")),
    Sketcher.Constraint("DistanceX", 74, 2, 74, 1, Q("0.5 mm")),
    Sketcher.Constraint("DistanceY", 2, 1, 2, 2, Q("0.5 mm")),
    Sketcher.Constraint("DistanceY", 6, 1, 6, 2, Q("1.5 mm")),
    Sketcher.Constraint("DistanceY", 13, 2, 13, 1, Q("1.5 mm")),
    Sketcher.Constraint("DistanceY", 17, 2, 17, 1, Q("0.5 mm")),
    Sketcher.Constraint("DistanceY", 20, 1, 20, 2, Q("4.5 mm")),
    Sketcher.Constraint("DistanceY", 22, 1, 22, 2, Q("0.5 mm")),
    Sketcher.Constraint("DistanceY", 35, 1, 35, 2, Q("0.5 mm")),
    Sketcher.Constraint("DistanceY", 37, 1, 37, 2, Q("4.5 mm")),
    Sketcher.Constraint("DistanceY", 40, 2, 40, 1, Q("0.5 mm")),
    Sketcher.Constraint("DistanceY", 44, 2, 44, 1, Q("1.5 mm")),
    Sketcher.Constraint("DistanceY", 51, 1, 51, 2, Q("1.5 mm")),
    Sketcher.Constraint("DistanceY", 55, 1, 55, 2, Q("0.5 mm")),
    Sketcher.Constraint("DistanceY", 58, 2, 58, 1, Q("4.5 mm")),
    Sketcher.Constraint("DistanceY", 60, 2, 60, 1, Q("0.5 mm")),
    Sketcher.Constraint("DistanceY", 73, 2, 73, 1, Q("0.5 mm")),
    Sketcher.Constraint("DistanceY", 75, 2, 75, 1, Q("4.5 mm")),
    Sketcher.Constraint("DistanceX", 0, 3, -1, 1, Q("8.000001 mm")),
    Sketcher.Constraint("DistanceX", -1, 1, 19, 3, Q("8.000001 mm")),
    Sketcher.Constraint("DistanceX", -1, 1, 38, 3, Q("8.000001 mm")),
    Sketcher.Constraint("DistanceX", 57, 3, -1, 1, Q("8.000001 mm")),
    Sketcher.Constraint("DistanceX", 0, 2, -1, 1, Q("8 mm")),
    Sketcher.Constraint("DistanceX", -1, 1, 12, 2, Q("6 mm")),
    Sketcher.Constraint("DistanceX", -1, 1, 28, 2, Q("4 mm")),
    Sketcher.Constraint("DistanceX", -1, 1, 38, 2, Q("8 mm")),
    Sketcher.Constraint("DistanceX", 50, 2, -1, 1, Q("6 mm")),
    Sketcher.Constraint("DistanceX", 66, 2, -1, 1, Q("4 mm")),
    Sketcher.Constraint("DistanceX", -1, 1, 77, 1, Q("3 mm")),
    Sketcher.Constraint("DistanceX", 7, 2, -1, 1, Q("3.5 mm")),
    Sketcher.Constraint("DistanceX", -1, 1, 10, 2, Q("0.5 mm")),
    Sketcher.Constraint("DistanceX", -1, 1, 26, 2, Q("4.5 mm")),
    Sketcher.Constraint("DistanceX", -1, 1, 29, 2, Q("4.5 mm")),
    Sketcher.Constraint("DistanceX", -1, 1, 45, 2, Q("3.5 mm")),
    Sketcher.Constraint("DistanceX", 48, 2, -1, 1, Q("0.5 mm")),
    Sketcher.Constraint("DistanceX", 64, 2, -1, 1, Q("4.5 mm")),
    Sketcher.Constraint("DistanceX", 67, 2, -1, 1, Q("4.5 mm")),
    Sketcher.Constraint("Radius", 76, Q("3.000021 mm")),
    Sketcher.Constraint("Radius", 79, Q("3.000021 mm")),
    Sketcher.Constraint("Radius", 81, Q("3.000021 mm")),
    Sketcher.Constraint("Radius", 83, Q("3.000021 mm")),
    Sketcher.Constraint("DistanceY", -1, 1, 38, 3, Q("8.008048 mm")),
    Sketcher.Constraint("DistanceY", -1, 1, 57, 3, Q("8.008048 mm")),
    Sketcher.Constraint("DistanceY", -1, 1, 76, 3, Q("0.008032 mm")),
    Sketcher.Constraint("DistanceY", 78, 1, -1, 1, Q("1.73005 mm")),
    Sketcher.Constraint("DistanceY", 81, 1, -1, 1, Q("1.73005 mm")),
    Sketcher.Constraint("DistanceY", -1, 1, 83, 1, Q("2.45325 mm")),
    Sketcher.Constraint("DistanceY", -1, 1, 84, 1, Q("2.45325 mm")),
    Sketcher.Constraint("Distance", 7, Q("3.535534 mm")),
    Sketcher.Constraint("Distance", 9, Q("0.707107 mm")),
    Sketcher.Constraint("Distance", 10, Q("0.707107 mm")),
    Sketcher.Constraint("Distance", 12, Q("3.535534 mm")),
    Sketcher.Constraint("Distance", 26, Q("3.535534 mm")),
    Sketcher.Constraint("Distance", 28, Q("0.707107 mm")),
    Sketcher.Constraint("Distance", 29, Q("0.707107 mm")),
    Sketcher.Constraint("Distance", 31, Q("3.535534 mm")),
    Sketcher.Constraint("Distance", 45, Q("3.535534 mm")),
    Sketcher.Constraint("Distance", 47, Q("0.707107 mm")),
    Sketcher.Constraint("Distance", 48, Q("0.707107 mm")),
    Sketcher.Constraint("Distance", 64, Q("3.535534 mm")),
    Sketcher.Constraint("Distance", 66, Q("0.707107 mm")),
    Sketcher.Constraint("Distance", 67, Q("0.707107 mm")),
    Sketcher.Constraint("Distance", 69, Q("3.535534 mm")),
    Sketcher.Constraint("DistanceY", 0, 3, -1, 1, Q("7.991954 mm")),
    Sketcher.Constraint("DistanceY", 19, 2, -1, 1, Q("7.991953 mm")),
    Sketcher.Constraint("DistanceY", -1, 1, 57, 2, Q("8.008047 mm")),
    Sketcher.Constraint("DistanceX", -1, 1, 76, 1, Q("2.445203 mm")),
    Sketcher.Constraint("DistanceY", -1, 1, 77, 1, Q("0.008047 mm")),
    Sketcher.Constraint("DistanceX", -1, 1, 79, 1, Q("1.738097 mm")),
    Sketcher.Constraint("DistanceX", 80, 1, -1, 1, Q("1.738097 mm")),
    Sketcher.Constraint("DistanceX", 82, 1, -1, 1, Q("2.445203 mm")),
])
pad1 = doc.addObject("PartDesign::Pad", "Pad")
body.addObject(pad1)
pad1.Profile = sketch1
pad1.Length = 405

doc.recompute()
